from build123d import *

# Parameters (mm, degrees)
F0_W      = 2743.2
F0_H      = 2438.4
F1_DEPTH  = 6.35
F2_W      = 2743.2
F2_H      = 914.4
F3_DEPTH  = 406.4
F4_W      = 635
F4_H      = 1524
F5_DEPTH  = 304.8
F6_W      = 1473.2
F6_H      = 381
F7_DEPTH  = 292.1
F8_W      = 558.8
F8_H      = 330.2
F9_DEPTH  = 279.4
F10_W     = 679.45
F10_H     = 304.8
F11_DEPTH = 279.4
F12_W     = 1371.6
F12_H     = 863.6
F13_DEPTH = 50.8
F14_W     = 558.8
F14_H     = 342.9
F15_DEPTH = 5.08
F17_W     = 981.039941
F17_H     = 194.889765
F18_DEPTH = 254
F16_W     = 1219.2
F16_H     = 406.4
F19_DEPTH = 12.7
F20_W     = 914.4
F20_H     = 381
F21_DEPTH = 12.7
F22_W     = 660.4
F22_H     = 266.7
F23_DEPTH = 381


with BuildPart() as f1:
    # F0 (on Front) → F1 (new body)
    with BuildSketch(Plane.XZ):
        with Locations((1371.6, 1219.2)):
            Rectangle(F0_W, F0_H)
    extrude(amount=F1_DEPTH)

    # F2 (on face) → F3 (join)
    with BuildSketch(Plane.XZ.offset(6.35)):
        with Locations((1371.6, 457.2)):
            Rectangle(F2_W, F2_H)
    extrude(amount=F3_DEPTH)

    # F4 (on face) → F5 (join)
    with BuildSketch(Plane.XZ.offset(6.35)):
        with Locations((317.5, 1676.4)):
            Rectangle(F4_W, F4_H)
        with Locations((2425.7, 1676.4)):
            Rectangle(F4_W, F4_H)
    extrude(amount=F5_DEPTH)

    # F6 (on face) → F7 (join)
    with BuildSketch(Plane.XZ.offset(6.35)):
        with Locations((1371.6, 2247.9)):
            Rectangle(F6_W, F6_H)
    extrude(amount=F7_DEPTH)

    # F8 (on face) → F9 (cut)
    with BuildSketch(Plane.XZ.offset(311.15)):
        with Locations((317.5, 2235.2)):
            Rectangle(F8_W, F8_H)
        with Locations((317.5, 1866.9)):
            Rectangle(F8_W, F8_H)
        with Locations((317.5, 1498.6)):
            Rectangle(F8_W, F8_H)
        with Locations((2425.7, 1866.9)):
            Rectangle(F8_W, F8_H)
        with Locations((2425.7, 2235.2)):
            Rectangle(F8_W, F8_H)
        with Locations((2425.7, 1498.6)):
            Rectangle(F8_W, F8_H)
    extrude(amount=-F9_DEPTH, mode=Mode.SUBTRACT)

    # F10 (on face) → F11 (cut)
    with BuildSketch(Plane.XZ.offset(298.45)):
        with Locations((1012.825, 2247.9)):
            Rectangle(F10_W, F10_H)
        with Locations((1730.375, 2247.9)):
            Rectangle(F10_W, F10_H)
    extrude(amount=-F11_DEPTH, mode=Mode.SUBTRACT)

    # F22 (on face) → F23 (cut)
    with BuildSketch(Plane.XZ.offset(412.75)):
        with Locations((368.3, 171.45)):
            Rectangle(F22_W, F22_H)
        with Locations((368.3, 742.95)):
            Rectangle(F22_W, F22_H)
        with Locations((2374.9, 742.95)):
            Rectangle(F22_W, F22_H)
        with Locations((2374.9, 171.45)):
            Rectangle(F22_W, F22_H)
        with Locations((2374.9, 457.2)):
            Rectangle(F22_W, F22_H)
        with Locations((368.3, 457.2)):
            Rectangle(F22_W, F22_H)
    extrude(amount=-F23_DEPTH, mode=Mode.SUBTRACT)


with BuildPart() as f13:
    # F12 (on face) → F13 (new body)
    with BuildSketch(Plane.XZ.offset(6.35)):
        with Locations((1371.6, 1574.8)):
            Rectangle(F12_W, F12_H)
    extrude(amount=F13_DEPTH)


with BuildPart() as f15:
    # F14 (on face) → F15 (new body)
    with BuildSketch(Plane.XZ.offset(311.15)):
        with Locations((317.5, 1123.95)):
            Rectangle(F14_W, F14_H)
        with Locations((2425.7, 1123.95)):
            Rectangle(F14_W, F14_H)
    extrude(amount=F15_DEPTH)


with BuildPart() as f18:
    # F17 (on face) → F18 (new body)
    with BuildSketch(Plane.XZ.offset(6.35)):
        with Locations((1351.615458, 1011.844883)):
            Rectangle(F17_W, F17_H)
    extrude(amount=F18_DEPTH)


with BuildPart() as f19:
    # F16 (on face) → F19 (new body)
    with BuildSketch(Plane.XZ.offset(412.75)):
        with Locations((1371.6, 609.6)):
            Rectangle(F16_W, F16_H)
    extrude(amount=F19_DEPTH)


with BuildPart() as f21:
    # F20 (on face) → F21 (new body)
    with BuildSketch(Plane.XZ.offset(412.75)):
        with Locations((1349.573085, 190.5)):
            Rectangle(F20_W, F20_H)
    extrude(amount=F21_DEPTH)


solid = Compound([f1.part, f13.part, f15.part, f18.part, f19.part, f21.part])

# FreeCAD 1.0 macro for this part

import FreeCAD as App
import Part
import Sketcher
from FreeCAD import Vector
Q = App.Units.Quantity

doc = App.newDocument("Part")
body = doc.addObject("PartDesign::Body", "Body")

# Sketch on XZ plane
sketch1 = doc.addObject("Sketcher::SketchObject", "Sketch")
body.addObject(sketch1)
sketch1.AttachmentSupport = (doc.XZ_Plane, [""])
sketch1.MapMode = "FlatFace"
sketch1.addGeometry(Part.LineSegment(Vector(0, 2438, 0), Vector(0, 0, 0)), False)
sketch1.addGeometry(Part.LineSegment(Vector(0, 0, 0), Vector(2743, 0, 0)), False)
sketch1.addGeometry(Part.LineSegment(Vector(2743, 0, 0), Vector(2743, 2438, 0)), False)
sketch1.addGeometry(Part.LineSegment(Vector(2743, 2438, 0), Vector(0, 2438, 0)), False)
sketch1.addConstraint(Sketcher.Constraint("Coincident", 0, 2, 1, 1))
sketch1.addConstraint(Sketcher.Constraint("Coincident", 1, 2, 2, 1))
sketch1.addConstraint(Sketcher.Constraint("Coincident", 2, 2, 3, 1))
sketch1.addConstraint(Sketcher.Constraint("Coincident", 3, 2, 0, 1))
sketch1.addConstraint(Sketcher.Constraint("Vertical", 0))
sketch1.addConstraint(Sketcher.Constraint("Horizontal", 1))
sketch1.addConstraint(Sketcher.Constraint("Vertical", 2))
sketch1.addConstraint(Sketcher.Constraint("Horizontal", 3))
sketch1.addConstraint(Sketcher.Constraint("Coincident", 0, 2, -1, 1))
sketch1.addConstraint(Sketcher.Constraint("DistanceX", 1, 1, 1, 2, Q("108 in")))
sketch1.addConstraint(Sketcher.Constraint("DistanceY", 0, 2, 0, 1, Q("96 in")))
pad1 = doc.addObject("PartDesign::Pad", "Pad")
body.addObject(pad1)
pad1.Profile = sketch1
pad1.Length = Q("0.25 in")

# Sketch on XZ plane
sketch2 = doc.addObject("Sketcher::SketchObject", "Sketch001")
body.addObject(sketch2)
sketch2.AttachmentSupport = (doc.XZ_Plane, [""])
sketch2.MapMode = "FlatFace"
sketch2.AttachmentOffset = App.Placement(Vector(0, 0, 0.25 * 25.4), App.Rotation())
sketch2.addGeometry(Part.LineSegment(Vector(0, 914, 0), Vector(0, 0, 0)), False)
sketch2.addGeometry(Part.LineSegment(Vector(0, 0, 0), Vector(2743, 0, 0)), False)
sketch2.addGeometry(Part.LineSegment(Vector(2743, 0, 0), Vector(2743, 914, 0)), False)
sketch2.addGeometry(Part.LineSegment(Vector(2743, 914, 0), Vector(0, 914, 0)), False)
sketch2.addConstraint(Sketcher.Constraint("Coincident", 0, 2, 1, 1))
sketch2.addConstraint(Sketcher.Constraint("Coincident", 1, 2, 2, 1))
sketch2.addConstraint(Sketcher.Constraint("Coincident", 2, 2, 3, 1))
sketch2.addConstraint(Sketcher.Constraint("Coincident", 3, 2, 0, 1))
sketch2.addConstraint(Sketcher.Constraint("Vertical", 0))
sketch2.addConstraint(Sketcher.Constraint("Horizontal", 1))
sketch2.addConstraint(Sketcher.Constraint("Vertical", 2))
sketch2.addConstraint(Sketcher.Constraint("Horizontal", 3))
sketch2.addConstraint(Sketcher.Constraint("Coincident", 0, 2, -1, 1))
sketch2.addConstraint(Sketcher.Constraint("DistanceX", 1, 1, 1, 2, Q("108 in")))
sketch2.addConstraint(Sketcher.Constraint("DistanceY", 0, 2, 0, 1, Q("36 in")))
pad2 = doc.addObject("PartDesign::Pad", "Pad001")
body.addObject(pad2)
pad2.Profile = sketch2
pad2.Length = Q("16 in")

# Sketch on XZ plane
sketch3 = doc.addObject("Sketcher::SketchObject", "Sketch002")
body.addObject(sketch3)
sketch3.AttachmentSupport = (doc.XZ_Plane, [""])
sketch3.MapMode = "FlatFace"
sketch3.AttachmentOffset = App.Placement(Vector(0, 0, 0.25 * 25.4), App.Rotation())
sketch3.addGeometry(Part.LineSegment(Vector(0, 2438, 0), Vector(0, 914, 0)), False)
sketch3.addGeometry(Part.LineSegment(Vector(0, 914, 0), Vector(635, 914, 0)), False)
sketch3.addGeometry(Part.LineSegment(Vector(635, 914, 0), Vector(635, 2438, 0)), False)
sketch3.addGeometry(Part.LineSegment(Vector(635, 2438, 0), Vector(0, 2438, 0)), False)
sketch3.addGeometry(Part.LineSegment(Vector(2108, 2438, 0), Vector(2108, 914, 0)), False)
sketch3.addGeometry(Part.LineSegment(Vector(2108, 914, 0), Vector(2743, 914, 0)), False)
sketch3.addGeometry(Part.LineSegment(Vector(2743, 914, 0), Vector(2743, 2438, 0)), False)
sketch3.addGeometry(Part.LineSegment(Vector(2743, 2438, 0), Vector(2108, 2438, 0)), False)
sketch3.addConstraint(Sketcher.Constraint("Coincident", 0, 2, 1, 1))
sketch3.addConstraint(Sketcher.Constraint("Coincident", 1, 2, 2, 1))
sketch3.addConstraint(Sketcher.Constraint("Coincident", 2, 2, 3, 1))
sketch3.addConstraint(Sketcher.Constraint("Coincident", 3, 2, 0, 1))
sketch3.addConstraint(Sketcher.Constraint("Coincident", 4, 2, 5, 1))
sketch3.addConstraint(Sketcher.Constraint("Coincident", 5, 2, 6, 1))
sketch3.addConstraint(Sketcher.Constraint("Coincident", 6, 2, 7, 1))
sketch3.addConstraint(Sketcher.Constraint("Coincident", 7, 2, 4, 1))
sketch3.addConstraint(Sketcher.Constraint("Vertical", 0))
sketch3.addConstraint(Sketcher.Constraint("Horizontal", 1))
sketch3.addConstraint(Sketcher.Constraint("Vertical", 2))
sketch3.addConstraint(Sketcher.Constraint("Horizontal", 3))
sketch3.addConstraint(Sketcher.Constraint("Vertical", 4))
sketch3.addConstraint(Sketcher.Constraint("Horizontal", 5))
sketch3.addConstraint(Sketcher.Constraint("Vertical", 6))
sketch3.addConstraint(Sketcher.Constraint("Horizontal", 7))
sketch3.addConstraint(Sketcher.Constraint("PointOnObject", 0, 2, -2))
sketch3.addConstraint(Sketcher.Constraint("Horizontal", 1, 2, 4, 2))
sketch3.addConstraint(Sketcher.Constraint("Horizontal", 3, 2, 6, 2))
sketch3.addConstraint(Sketcher.Constraint("Equal", 3, 5))
sketch3.addConstraint(Sketcher.Constraint("DistanceX", 1, 1, 1, 2, Q("25 in")))
sketch3.addConstraint(Sketcher.Constraint("DistanceY", 0, 2, 0, 1, Q("60 in")))
sketch3.addConstraint(Sketcher.Constraint("DistanceY", -1, 1, 0, 2, Q("36 in")))
sketch3.addConstraint(Sketcher.Constraint("DistanceX", -1, 1, 4, 2, Q("83 in")))
pad3 = doc.addObject("PartDesign::Pad", "Pad002")
body.addObject(pad3)
pad3.Profile = sketch3
pad3.Length = Q("12 in")

# Sketch on XZ plane
sketch4 = doc.addObject("Sketcher::SketchObject", "Sketch003")
body.addObject(sketch4)
sketch4.AttachmentSupport = (doc.XZ_Plane, [""])
sketch4.MapMode = "FlatFace"
sketch4.AttachmentOffset = App.Placement(Vector(0, 0, 0.25 * 25.4), App.Rotation())
sketch4.addGeometry(Part.LineSegment(Vector(635, 2438, 0), Vector(635, 2057, 0)), False)
sketch4.addGeometry(Part.LineSegment(Vector(635, 2057, 0), Vector(2108, 2057, 0)), False)
sketch4.addGeometry(Part.LineSegment(Vector(2108, 2057, 0), Vector(2108, 2438, 0)), False)
sketch4.addGeometry(Part.LineSegment(Vector(2108, 2438, 0), Vector(635, 2438, 0)), False)
sketch4.addConstraint(Sketcher.Constraint("Coincident", 0, 2, 1, 1))
sketch4.addConstraint(Sketcher.Constraint("Coincident", 1, 2, 2, 1))
sketch4.addConstraint(Sketcher.Constraint("Coincident", 2, 2, 3, 1))
sketch4.addConstraint(Sketcher.Constraint("Coincident", 3, 2, 0, 1))
sketch4.addConstraint(Sketcher.Constraint("Vertical", 0))
sketch4.addConstraint(Sketcher.Constraint("Horizontal", 1))
sketch4.addConstraint(Sketcher.Constraint("Vertical", 2))
sketch4.addConstraint(Sketcher.Constraint("Horizontal", 3))
sketch4.addConstraint(Sketcher.Constraint("DistanceX", 1, 1, 1, 2, Q("58 in")))
sketch4.addConstraint(Sketcher.Constraint("DistanceY", 0, 2, 0, 1, Q("15 in")))
sketch4.addConstraint(Sketcher.Constraint("DistanceX", -1, 1, 0, 2, Q("25 in")))
sketch4.addConstraint(Sketcher.Constraint("DistanceY", -1, 1, 0, 2, Q("81 in")))
pad4 = doc.addObject("PartDesign::Pad", "Pad003")
body.addObject(pad4)
pad4.Profile = sketch4
pad4.Length = Q("11.5 in")

# Sketch on XZ plane
sketch5 = doc.addObject("Sketcher::SketchObject", "Sketch004")
body.addObject(sketch5)
sketch5.AttachmentSupport = (doc.XZ_Plane, [""])
sketch5.MapMode = "FlatFace"
sketch5.AttachmentOffset = App.Placement(Vector(0, 0, 12.25 * 25.4), App.Rotation())
sketch5.addGeometry(Part.LineSegment(Vector(38, 2400, 0), Vector(38, 2070, 0)), False)
sketch5.addGeometry(Part.LineSegment(Vector(38, 2070, 0), Vector(597, 2070, 0)), False)
sketch5.addGeometry(Part.LineSegment(Vector(597, 2070, 0), Vector(597, 2400, 0)), False)
sketch5.addGeometry(Part.LineSegment(Vector(597, 2400, 0), Vector(38, 2400, 0)), False)
sketch5.addGeometry(Part.LineSegment(Vector(38, 2032, 0), Vector(38, 1702, 0)), False)
sketch5.addGeometry(Part.LineSegment(Vector(38, 1702, 0), Vector(597, 1702, 0)), False)
sketch5.addGeometry(Part.LineSegment(Vector(597, 1702, 0), Vector(597, 2032, 0)), False)
sketch5.addGeometry(Part.LineSegment(Vector(597, 2032, 0), Vector(38, 2032, 0)), False)
sketch5.addGeometry(Part.LineSegment(Vector(38, 1664, 0), Vector(38, 1334, 0)), False)
sketch5.addGeometry(Part.LineSegment(Vector(38, 1334, 0), Vector(597, 1334, 0)), False)
sketch5.addGeometry(Part.LineSegment(Vector(597, 1334, 0), Vector(597, 1664, 0)), False)
sketch5.addGeometry(Part.LineSegment(Vector(597, 1664, 0), Vector(38, 1664, 0)), False)
sketch5.addGeometry(Part.LineSegment(Vector(2146, 2032, 0), Vector(2146, 1702, 0)), False)
sketch5.addGeometry(Part.LineSegment(Vector(2146, 1702, 0), Vector(2705, 1702, 0)), False)
sketch5.addGeometry(Part.LineSegment(Vector(2705, 1702, 0), Vector(2705, 2032, 0)), False)
sketch5.addGeometry(Part.LineSegment(Vector(2705, 2032, 0), Vector(2146, 2032, 0)), False)
sketch5.addGeometry(Part.LineSegment(Vector(2146, 2400, 0), Vector(2146, 2070, 0)), False)
sketch5.addGeometry(Part.LineSegment(Vector(2146, 2070, 0), Vector(2705, 2070, 0)), False)
sketch5.addGeometry(Part.LineSegment(Vector(2705, 2070, 0), Vector(2705, 2400, 0)), False)
sketch5.addGeometry(Part.LineSegment(Vector(2705, 2400, 0), Vector(2146, 2400, 0)), False)
sketch5.addGeometry(Part.LineSegment(Vector(2146, 1664, 0), Vector(2146, 1334, 0)), False)
sketch5.addGeometry(Part.LineSegment(Vector(2146, 1334, 0), Vector(2705, 1334, 0)), False)
sketch5.addGeometry(Part.LineSegment(Vector(2705, 1334, 0), Vector(2705, 1664, 0)), False)
sketch5.addGeometry(Part.LineSegment(Vector(2705, 1664, 0), Vector(2146, 1664, 0)), False)
sketch5.addConstraint(Sketcher.Constraint("Coincident", 0, 2, 1, 1))
sketch5.addConstraint(Sketcher.Constraint("Coincident", 1, 2, 2, 1))
sketch5.addConstraint(Sketcher.Constraint("Coincident", 2, 2, 3, 1))
sketch5.addConstraint(Sketcher.Constraint("Coincident", 3, 2, 0, 1))
sketch5.addConstraint(Sketcher.Constraint("Coincident", 4, 2, 5, 1))
sketch5.addConstraint(Sketcher.Constraint("Coincident", 5, 2, 6, 1))
sketch5.addConstraint(Sketcher.Constraint("Coincident", 6, 2, 7, 1))
sketch5.addConstraint(Sketcher.Constraint("Coincident", 7, 2, 4, 1))
sketch5.addConstraint(Sketcher.Constraint("Coincident", 8, 2, 9, 1))
sketch5.addConstraint(Sketcher.Constraint("Coincident", 9, 2, 10, 1))
sketch5.addConstraint(Sketcher.Constraint("Coincident", 10, 2, 11, 1))
sketch5.addConstraint(Sketcher.Constraint("Coincident", 11, 2, 8, 1))
sketch5.addConstraint(Sketcher.Constraint("Coincident", 12, 2, 13, 1))
sketch5.addConstraint(Sketcher.Constraint("Coincident", 13, 2, 14, 1))
sketch5.addConstraint(Sketcher.Constraint("Coincident", 14, 2, 15, 1))
sketch5.addConstraint(Sketcher.Constraint("Coincident", 15, 2, 12, 1))
sketch5.addConstraint(Sketcher.Constraint("Coincident", 16, 2, 17, 1))
sketch5.addConstraint(Sketcher.Constraint("Coincident", 17, 2, 18, 1))
sketch5.addConstraint(Sketcher.Constraint("Coincident", 18, 2, 19, 1))
sketch5.addConstraint(Sketcher.Constraint("Coincident", 19, 2, 16, 1))
sketch5.addConstraint(Sketcher.Constraint("Coincident", 20, 2, 21, 1))
sketch5.addConstraint(Sketcher.Constraint("Coincident", 21, 2, 22, 1))
sketch5.addConstraint(Sketcher.Constraint("Coincident", 22, 2, 23, 1))
sketch5.addConstraint(Sketcher.Constraint("Coincident", 23, 2, 20, 1))
sketch5.addConstraint(Sketcher.Constraint("Vertical", 0))
sketch5.addConstraint(Sketcher.Constraint("Horizontal", 1))
sketch5.addConstraint(Sketcher.Constraint("Vertical", 2))
sketch5.addConstraint(Sketcher.Constraint("Horizontal", 3))
sketch5.addConstraint(Sketcher.Constraint("Vertical", 4))
sketch5.addConstraint(Sketcher.Constraint("Horizontal", 5))
sketch5.addConstraint(Sketcher.Constraint("Vertical", 6))
sketch5.addConstraint(Sketcher.Constraint("Horizontal", 7))
sketch5.addConstraint(Sketcher.Constraint("Vertical", 8))
sketch5.addConstraint(Sketcher.Constraint("Horizontal", 9))
sketch5.addConstraint(Sketcher.Constraint("Vertical", 10))
sketch5.addConstraint(Sketcher.Constraint("Horizontal", 11))
sketch5.addConstraint(Sketcher.Constraint("Vertical", 12))
sketch5.addConstraint(Sketcher.Constraint("Horizontal", 13))
sketch5.addConstraint(Sketcher.Constraint("Vertical", 14))
sketch5.addConstraint(Sketcher.Constraint("Horizontal", 15))
sketch5.addConstraint(Sketcher.Constraint("Vertical", 16))
sketch5.addConstraint(Sketcher.Constraint("Horizontal", 17))
sketch5.addConstraint(Sketcher.Constraint("Vertical", 18))
sketch5.addConstraint(Sketcher.Constraint("Horizontal", 19))
sketch5.addConstraint(Sketcher.Constraint("Vertical", 20))
sketch5.addConstraint(Sketcher.Constraint("Horizontal", 21))
sketch5.addConstraint(Sketcher.Constraint("Vertical", 22))
sketch5.addConstraint(Sketcher.Constraint("Horizontal", 23))
sketch5.addConstraint(Sketcher.Constraint("Horizontal", 5, 2, 12, 2))
sketch5.addConstraint(Sketcher.Constraint("Horizontal", 7, 2, 14, 2))
sketch5.addConstraint(Sketcher.Constraint("Horizontal", 1, 2, 16, 2))
sketch5.addConstraint(Sketcher.Constraint("Horizontal", 3, 2, 18, 2))
sketch5.addConstraint(Sketcher.Constraint("Horizontal", 9, 2, 20, 2))
sketch5.addConstraint(Sketcher.Constraint("Horizontal", 11, 2, 22, 2))
sketch5.addConstraint(Sketcher.Constraint("Vertical", 3, 2, 4, 2))
sketch5.addConstraint(Sketcher.Constraint("Vertical", 2, 2, 5, 2))
sketch5.addConstraint(Sketcher.Constraint("Vertical", 7, 2, 8, 2))
sketch5.addConstraint(Sketcher.Constraint("Vertical", 6, 2, 9, 2))
sketch5.addConstraint(Sketcher.Constraint("Vertical", 15, 2, 16, 2))
sketch5.addConstraint(Sketcher.Constraint("Vertical", 14, 2, 17, 2))
sketch5.addConstraint(Sketcher.Constraint("Vertical", 19, 2, 20, 2))
sketch5.addConstraint(Sketcher.Constraint("Vertical", 18, 2, 21, 2))
sketch5.addConstraint(Sketcher.Constraint("Equal", 11, 13))
sketch5.addConstraint(Sketcher.Constraint("Equal", 2, 4))
sketch5.addConstraint(Sketcher.Constraint("Equal", 6, 8))
sketch5.addConstraint(Sketcher.Constraint("DistanceX", 1, 1, 1, 2, Q("22 in")))
sketch5.addConstraint(Sketcher.Constraint("DistanceY", 0, 2, 0, 1, Q("13 in")))
sketch5.addConstraint(Sketcher.Constraint("DistanceY", -1, 1, 4, 2, Q("67 in")))
sketch5.addConstraint(Sketcher.Constraint("DistanceY", 8, 2, 0, 2, Q("29 in")))
sketch5.addConstraint(Sketcher.Constraint("DistanceX", 5, 2, 12, 2, Q("61 in")))
sketch5.addConstraint(Sketcher.Constraint("DistanceX", -1, 1, 0, 2, Q("1.5 in")))
sketch5.addConstraint(Sketcher.Constraint("DistanceY", -1, 1, 0, 2, Q("81.5 in")))
pocket1 = doc.addObject("PartDesign::Pocket", "Pocket")
body.addObject(pocket1)
pocket1.Profile = sketch5
pocket1.Length = Q("11 in")

# Sketch on XZ plane
sketch6 = doc.addObject("Sketcher::SketchObject", "Sketch005")
body.addObject(sketch6)
sketch6.AttachmentSupport = (doc.XZ_Plane, [""])
sketch6.MapMode = "FlatFace"
sketch6.AttachmentOffset = App.Placement(Vector(0, 0, 11.75 * 25.4), App.Rotation())
sketch6.addGeometry(Part.LineSegment(Vector(673, 2400, 0), Vector(673, 2096, 0)), False)
sketch6.addGeometry(Part.LineSegment(Vector(673, 2096, 0), Vector(1353, 2096, 0)), False)
sketch6.addGeometry(Part.LineSegment(Vector(1353, 2096, 0), Vector(1353, 2400, 0)), False)
sketch6.addGeometry(Part.LineSegment(Vector(1353, 2400, 0), Vector(673, 2400, 0)), False)
sketch6.addGeometry(Part.LineSegment(Vector(1391, 2400, 0), Vector(1391, 2096, 0)), False)
sketch6.addGeometry(Part.LineSegment(Vector(1391, 2096, 0), Vector(2070, 2096, 0)), False)
sketch6.addGeometry(Part.LineSegment(Vector(2070, 2096, 0), Vector(2070, 2400, 0)), False)
sketch6.addGeometry(Part.LineSegment(Vector(2070, 2400, 0), Vector(1391, 2400, 0)), False)
sketch6.addConstraint(Sketcher.Constraint("Coincident", 0, 2, 1, 1))
sketch6.addConstraint(Sketcher.Constraint("Coincident", 1, 2, 2, 1))
sketch6.addConstraint(Sketcher.Constraint("Coincident", 2, 2, 3, 1))
sketch6.addConstraint(Sketcher.Constraint("Coincident", 3, 2, 0, 1))
sketch6.addConstraint(Sketcher.Constraint("Coincident", 4, 2, 5, 1))
sketch6.addConstraint(Sketcher.Constraint("Coincident", 5, 2, 6, 1))
sketch6.addConstraint(Sketcher.Constraint("Coincident", 6, 2, 7, 1))
sketch6.addConstraint(Sketcher.Constraint("Coincident", 7, 2, 4, 1))
sketch6.addConstraint(Sketcher.Constraint("Vertical", 0))
sketch6.addConstraint(Sketcher.Constraint("Horizontal", 1))
sketch6.addConstraint(Sketcher.Constraint("Vertical", 2))
sketch6.addConstraint(Sketcher.Constraint("Horizontal", 3))
sketch6.addConstraint(Sketcher.Constraint("Vertical", 4))
sketch6.addConstraint(Sketcher.Constraint("Horizontal", 5))
sketch6.addConstraint(Sketcher.Constraint("Vertical", 6))
sketch6.addConstraint(Sketcher.Constraint("Horizontal", 7))
sketch6.addConstraint(Sketcher.Constraint("Horizontal", 1, 2, 4, 2))
sketch6.addConstraint(Sketcher.Constraint("Horizontal", 3, 2, 6, 2))
sketch6.addConstraint(Sketcher.Constraint("Equal", 3, 5))
sketch6.addConstraint(Sketcher.Constraint("DistanceY", 0, 2, 0, 1, Q("12 in")))
sketch6.addConstraint(Sketcher.Constraint("DistanceX", 0, 2, 5, 2, Q("55 in")))
sketch6.addConstraint(Sketcher.Constraint("DistanceX", 1, 1, 1, 2, Q("26.75 in")))
sketch6.addConstraint(Sketcher.Constraint("DistanceX", -1, 1, 0, 2, Q("26.5 in")))
sketch6.addConstraint(Sketcher.Constraint("DistanceY", -1, 1, 0, 2, Q("82.5 in")))
pocket2 = doc.addObject("PartDesign::Pocket", "Pocket001")
body.addObject(pocket2)
pocket2.Profile = sketch6
pocket2.Length = Q("11 in")

# Sketch on XZ plane
sketch7 = doc.addObject("Sketcher::SketchObject", "Sketch006")
body.addObject(sketch7)
sketch7.AttachmentSupport = (doc.XZ_Plane, [""])
sketch7.MapMode = "FlatFace"
sketch7.AttachmentOffset = App.Placement(Vector(0, 0, 16.25 * 25.4), App.Rotation())
sketch7.addGeometry(Part.LineSegment(Vector(38, 305, 0), Vector(38, 38, 0)), False)
sketch7.addGeometry(Part.LineSegment(Vector(38, 38, 0), Vector(698, 38, 0)), False)
sketch7.addGeometry(Part.LineSegment(Vector(698, 38, 0), Vector(698, 305, 0)), False)
sketch7.addGeometry(Part.LineSegment(Vector(698, 305, 0), Vector(38, 305, 0)), False)
sketch7.addGeometry(Part.LineSegment(Vector(38, 876, 0), Vector(38, 610, 0)), False)
sketch7.addGeometry(Part.LineSegment(Vector(38, 610, 0), Vector(698, 610, 0)), False)
sketch7.addGeometry(Part.LineSegment(Vector(698, 610, 0), Vector(698, 876, 0)), False)
sketch7.addGeometry(Part.LineSegment(Vector(698, 876, 0), Vector(38, 876, 0)), False)
sketch7.addGeometry(Part.LineSegment(Vector(2045, 876, 0), Vector(2045, 610, 0)), False)
sketch7.addGeometry(Part.LineSegment(Vector(2045, 610, 0), Vector(2705, 610, 0)), False)
sketch7.addGeometry(Part.LineSegment(Vector(2705, 610, 0), Vector(2705, 876, 0)), False)
sketch7.addGeometry(Part.LineSegment(Vector(2705, 876, 0), Vector(2045, 876, 0)), False)
sketch7.addGeometry(Part.LineSegment(Vector(2045, 305, 0), Vector(2045, 38, 0)), False)
sketch7.addGeometry(Part.LineSegment(Vector(2045, 38, 0), Vector(2705, 38, 0)), False)
sketch7.addGeometry(Part.LineSegment(Vector(2705, 38, 0), Vector(2705, 305, 0)), False)
sketch7.addGeometry(Part.LineSegment(Vector(2705, 305, 0), Vector(2045, 305, 0)), False)
sketch7.addGeometry(Part.LineSegment(Vector(2045, 591, 0), Vector(2045, 324, 0)), False)
sketch7.addGeometry(Part.LineSegment(Vector(2045, 324, 0), Vector(2705, 324, 0)), False)
sketch7.addGeometry(Part.LineSegment(Vector(2705, 324, 0), Vector(2705, 591, 0)), False)
sketch7.addGeometry(Part.LineSegment(Vector(2705, 591, 0), Vector(2045, 591, 0)), False)
sketch7.addGeometry(Part.LineSegment(Vector(38, 591, 0), Vector(38, 324, 0)), False)
sketch7.addGeometry(Part.LineSegment(Vector(38, 324, 0), Vector(698, 324, 0)), False)
sketch7.addGeometry(Part.LineSegment(Vector(698, 324, 0), Vector(698, 591, 0)), False)
sketch7.addGeometry(Part.LineSegment(Vector(698, 591, 0), Vector(38, 591, 0)), False)
sketch7.addConstraint(Sketcher.Constraint("Coincident", 0, 2, 1, 1))
sketch7.addConstraint(Sketcher.Constraint("Coincident", 1, 2, 2, 1))
sketch7.addConstraint(Sketcher.Constraint("Coincident", 2, 2, 3, 1))
sketch7.addConstraint(Sketcher.Constraint("Coincident", 3, 2, 0, 1))
sketch7.addConstraint(Sketcher.Constraint("Coincident", 4, 2, 5, 1))
sketch7.addConstraint(Sketcher.Constraint("Coincident", 5, 2, 6, 1))
sketch7.addConstraint(Sketcher.Constraint("Coincident", 6, 2, 7, 1))
sketch7.addConstraint(Sketcher.Constraint("Coincident", 7, 2, 4, 1))
sketch7.addConstraint(Sketcher.Constraint("Coincident", 8, 2, 9, 1))
sketch7.addConstraint(Sketcher.Constraint("Coincident", 9, 2, 10, 1))
sketch7.addConstraint(Sketcher.Constraint("Coincident", 10, 2, 11, 1))
sketch7.addConstraint(Sketcher.Constraint("Coincident", 11, 2, 8, 1))
sketch7.addConstraint(Sketcher.Constraint("Coincident", 12, 2, 13, 1))
sketch7.addConstraint(Sketcher.Constraint("Coincident", 13, 2, 14, 1))
sketch7.addConstraint(Sketcher.Constraint("Coincident", 14, 2, 15, 1))
sketch7.addConstraint(Sketcher.Constraint("Coincident", 15, 2, 12, 1))
sketch7.addConstraint(Sketcher.Constraint("Coincident", 16, 2, 17, 1))
sketch7.addConstraint(Sketcher.Constraint("Coincident", 17, 2, 18, 1))
sketch7.addConstraint(Sketcher.Constraint("Coincident", 18, 2, 19, 1))
sketch7.addConstraint(Sketcher.Constraint("Coincident", 19, 2, 16, 1))
sketch7.addConstraint(Sketcher.Constraint("Coincident", 20, 2, 21, 1))
sketch7.addConstraint(Sketcher.Constraint("Coincident", 21, 2, 22, 1))
sketch7.addConstraint(Sketcher.Constraint("Coincident", 22, 2, 23, 1))
sketch7.addConstraint(Sketcher.Constraint("Coincident", 23, 2, 20, 1))
sketch7.addConstraint(Sketcher.Constraint("Vertical", 0))
sketch7.addConstraint(Sketcher.Constraint("Horizontal", 1))
sketch7.addConstraint(Sketcher.Constraint("Vertical", 2))
sketch7.addConstraint(Sketcher.Constraint("Horizontal", 3))
sketch7.addConstraint(Sketcher.Constraint("Vertical", 4))
sketch7.addConstraint(Sketcher.Constraint("Horizontal", 5))
sketch7.addConstraint(Sketcher.Constraint("Vertical", 6))
sketch7.addConstraint(Sketcher.Constraint("Horizontal", 7))
sketch7.addConstraint(Sketcher.Constraint("Vertical", 8))
sketch7.addConstraint(Sketcher.Constraint("Horizontal", 9))
sketch7.addConstraint(Sketcher.Constraint("Vertical", 10))
sketch7.addConstraint(Sketcher.Constraint("Horizontal", 11))
sketch7.addConstraint(Sketcher.Constraint("Vertical", 12))
sketch7.addConstraint(Sketcher.Constraint("Horizontal", 13))
sketch7.addConstraint(Sketcher.Constraint("Vertical", 14))
sketch7.addConstraint(Sketcher.Constraint("Horizontal", 15))
sketch7.addConstraint(Sketcher.Constraint("Vertical", 16))
sketch7.addConstraint(Sketcher.Constraint("Horizontal", 17))
sketch7.addConstraint(Sketcher.Constraint("Vertical", 18))
sketch7.addConstraint(Sketcher.Constraint("Horizontal", 19))
sketch7.addConstraint(Sketcher.Constraint("Vertical", 20))
sketch7.addConstraint(Sketcher.Constraint("Horizontal", 21))
sketch7.addConstraint(Sketcher.Constraint("Vertical", 22))
sketch7.addConstraint(Sketcher.Constraint("Horizontal", 23))
sketch7.addConstraint(Sketcher.Constraint("Horizontal", 5, 2, 8, 2))
sketch7.addConstraint(Sketcher.Constraint("Horizontal", 7, 2, 10, 2))
sketch7.addConstraint(Sketcher.Constraint("Horizontal", 1, 2, 12, 2))
sketch7.addConstraint(Sketcher.Constraint("Horizontal", 3, 2, 14, 2))
sketch7.addConstraint(Sketcher.Constraint("Horizontal", 17, 2, 20, 2))
sketch7.addConstraint(Sketcher.Constraint("Horizontal", 19, 2, 22, 2))
sketch7.addConstraint(Sketcher.Constraint("Vertical", 3, 2, 4, 2))
sketch7.addConstraint(Sketcher.Constraint("Vertical", 2, 2, 5, 2))
sketch7.addConstraint(Sketcher.Constraint("Vertical", 11, 2, 12, 2))
sketch7.addConstraint(Sketcher.Constraint("Vertical", 10, 2, 13, 2))
sketch7.addConstraint(Sketcher.Constraint("Vertical", 15, 2, 16, 2))
sketch7.addConstraint(Sketcher.Constraint("Vertical", 14, 2, 17, 2))
sketch7.addConstraint(Sketcher.Constraint("Vertical", 7, 2, 20, 2))
sketch7.addConstraint(Sketcher.Constraint("Vertical", 6, 2, 21, 2))
sketch7.addConstraint(Sketcher.Constraint("Equal", 7, 9))
sketch7.addConstraint(Sketcher.Constraint("Equal", 2, 4))
sketch7.addConstraint(Sketcher.Constraint("Equal", 14, 16))
sketch7.addConstraint(Sketcher.Constraint("DistanceX", 1, 1, 1, 2, Q("26 in")))
sketch7.addConstraint(Sketcher.Constraint("DistanceY", 0, 2, 0, 1, Q("10.5 in")))
sketch7.addConstraint(Sketcher.Constraint("DistanceY", -1, 1, 2, 2, Q("12 in")))
sketch7.addConstraint(Sketcher.Constraint("DistanceY", -1, 1, 4, 2, Q("24 in")))
sketch7.addConstraint(Sketcher.Constraint("DistanceX", 5, 2, 8, 2, Q("53 in")))
sketch7.addConstraint(Sketcher.Constraint("DistanceX", -1, 1, 0, 2, Q("1.5 in")))
sketch7.addConstraint(Sketcher.Constraint("DistanceY", -1, 1, 16, 2, Q("12.75 in")))
pocket3 = doc.addObject("PartDesign::Pocket", "Pocket002")
body.addObject(pocket3)
pocket3.Profile = sketch7
pocket3.Length = Q("15 in")
body2 = doc.addObject("PartDesign::Body", "Body001")

# Sketch on XZ plane
sketch8 = doc.addObject("Sketcher::SketchObject", "Sketch007")
body2.addObject(sketch8)
sketch8.AttachmentSupport = (doc.getObject("XZ_Plane001"), [""])
sketch8.MapMode = "FlatFace"
sketch8.AttachmentOffset = App.Placement(Vector(0, 0, 0.25 * 25.4), App.Rotation())
sketch8.addGeometry(Part.LineSegment(Vector(686, 2007, 0), Vector(686, 1143, 0)), False)
sketch8.addGeometry(Part.LineSegment(Vector(686, 1143, 0), Vector(2057, 1143, 0)), False)
sketch8.addGeometry(Part.LineSegment(Vector(2057, 1143, 0), Vector(2057, 2007, 0)), False)
sketch8.addGeometry(Part.LineSegment(Vector(2057, 2007, 0), Vector(686, 2007, 0)), False)
sketch8.addConstraint(Sketcher.Constraint("Coincident", 0, 2, 1, 1))
sketch8.addConstraint(Sketcher.Constraint("Coincident", 1, 2, 2, 1))
sketch8.addConstraint(Sketcher.Constraint("Coincident", 2, 2, 3, 1))
sketch8.addConstraint(Sketcher.Constraint("Coincident", 3, 2, 0, 1))
sketch8.addConstraint(Sketcher.Constraint("Vertical", 0))
sketch8.addConstraint(Sketcher.Constraint("Horizontal", 1))
sketch8.addConstraint(Sketcher.Constraint("Vertical", 2))
sketch8.addConstraint(Sketcher.Constraint("Horizontal", 3))
sketch8.addConstraint(Sketcher.Constraint("DistanceX", 1, 1, 1, 2, Q("54 in")))
sketch8.addConstraint(Sketcher.Constraint("DistanceY", 0, 2, 0, 1, Q("34 in")))
sketch8.addConstraint(Sketcher.Constraint("DistanceX", -1, 1, 0, 2, Q("27 in")))
sketch8.addConstraint(Sketcher.Constraint("DistanceY", -1, 1, 0, 2, Q("45 in")))
pad5 = doc.addObject("PartDesign::Pad", "Pad004")
body2.addObject(pad5)
pad5.Profile = sketch8
pad5.Length = Q("2 in")
body3 = doc.addObject("PartDesign::Body", "Body002")
body3.AllowCompound = True

# Sketch on XZ plane
sketch9 = doc.addObject("Sketcher::SketchObject", "Sketch008")
body3.addObject(sketch9)
sketch9.AttachmentSupport = (doc.getObject("XZ_Plane002"), [""])
sketch9.MapMode = "FlatFace"
sketch9.AttachmentOffset = App.Placement(Vector(0, 0, 12.25 * 25.4), App.Rotation())
sketch9.addGeometry(Part.LineSegment(Vector(38, 1295, 0), Vector(38, 952, 0)), False)
sketch9.addGeometry(Part.LineSegment(Vector(38, 952, 0), Vector(597, 952, 0)), False)
sketch9.addGeometry(Part.LineSegment(Vector(597, 952, 0), Vector(597, 1295, 0)), False)
sketch9.addGeometry(Part.LineSegment(Vector(597, 1295, 0), Vector(38, 1295, 0)), False)
sketch9.addGeometry(Part.LineSegment(Vector(2146, 1295, 0), Vector(2146, 952, 0)), False)
sketch9.addGeometry(Part.LineSegment(Vector(2146, 952, 0), Vector(2705, 952, 0)), False)
sketch9.addGeometry(Part.LineSegment(Vector(2705, 952, 0), Vector(2705, 1295, 0)), False)
sketch9.addGeometry(Part.LineSegment(Vector(2705, 1295, 0), Vector(2146, 1295, 0)), False)
sketch9.addConstraint(Sketcher.Constraint("Coincident", 0, 2, 1, 1))
sketch9.addConstraint(Sketcher.Constraint("Coincident", 1, 2, 2, 1))
sketch9.addConstraint(Sketcher.Constraint("Coincident", 2, 2, 3, 1))
sketch9.addConstraint(Sketcher.Constraint("Coincident", 3, 2, 0, 1))
sketch9.addConstraint(Sketcher.Constraint("Coincident", 4, 2, 5, 1))
sketch9.addConstraint(Sketcher.Constraint("Coincident", 5, 2, 6, 1))
sketch9.addConstraint(Sketcher.Constraint("Coincident", 6, 2, 7, 1))
sketch9.addConstraint(Sketcher.Constraint("Coincident", 7, 2, 4, 1))
sketch9.addConstraint(Sketcher.Constraint("Vertical", 0))
sketch9.addConstraint(Sketcher.Constraint("Horizontal", 1))
sketch9.addConstraint(Sketcher.Constraint("Vertical", 2))
sketch9.addConstraint(Sketcher.Constraint("Horizontal", 3))
sketch9.addConstraint(Sketcher.Constraint("Vertical", 4))
sketch9.addConstraint(Sketcher.Constraint("Horizontal", 5))
sketch9.addConstraint(Sketcher.Constraint("Vertical", 6))
sketch9.addConstraint(Sketcher.Constraint("Horizontal", 7))
sketch9.addConstraint(Sketcher.Constraint("Horizontal", 1, 2, 4, 2))
sketch9.addConstraint(Sketcher.Constraint("Horizontal", 3, 2, 6, 2))
sketch9.addConstraint(Sketcher.Constraint("Equal", 3, 5))
sketch9.addConstraint(Sketcher.Constraint("DistanceX", 1, 1, 1, 2, Q("22 in")))
sketch9.addConstraint(Sketcher.Constraint("DistanceY", 0, 2, 0, 1, Q("13.5 in")))
sketch9.addConstraint(Sketcher.Constraint("DistanceY", -1, 1, 2, 2, Q("51 in")))
sketch9.addConstraint(Sketcher.Constraint("DistanceX", 1, 2, 4, 2, Q("61 in")))
sketch9.addConstraint(Sketcher.Constraint("DistanceX", -1, 1, 0, 2, Q("1.5 in")))
pad6 = doc.addObject("PartDesign::Pad", "Pad005")
body3.addObject(pad6)
pad6.Profile = sketch9
pad6.Length = Q("0.2 in")
body4 = doc.addObject("PartDesign::Body", "Body003")

# Sketch on XZ plane
sketch10 = doc.addObject("Sketcher::SketchObject", "Sketch009")
body4.addObject(sketch10)
sketch10.AttachmentSupport = (doc.getObject("XZ_Plane003"), [""])
sketch10.MapMode = "FlatFace"
sketch10.AttachmentOffset = App.Placement(Vector(0, 0, 0.25 * 25.4), App.Rotation())
sketch10.addGeometry(Part.LineSegment(Vector(861, 1109, 0), Vector(861, 914, 0)), False)
sketch10.addGeometry(Part.LineSegment(Vector(861, 914, 0), Vector(1842, 914, 0)), False)
sketch10.addGeometry(Part.LineSegment(Vector(1842, 914, 0), Vector(1842, 1109, 0)), False)
sketch10.addGeometry(Part.LineSegment(Vector(1842, 1109, 0), Vector(861, 1109, 0)), False)
sketch10.addConstraint(Sketcher.Constraint("Coincident", 0, 2, 1, 1))
sketch10.addConstraint(Sketcher.Constraint("Coincident", 1, 2, 2, 1))
sketch10.addConstraint(Sketcher.Constraint("Coincident", 2, 2, 3, 1))
sketch10.addConstraint(Sketcher.Constraint("Coincident", 3, 2, 0, 1))
sketch10.addConstraint(Sketcher.Constraint("Vertical", 0))
sketch10.addConstraint(Sketcher.Constraint("Horizontal", 1))
sketch10.addConstraint(Sketcher.Constraint("Vertical", 2))
sketch10.addConstraint(Sketcher.Constraint("Horizontal", 3))
sketch10.addConstraint(Sketcher.Constraint("DistanceY", -1, 1, 0, 2, Q("36 in")))
sketch10.addConstraint(Sketcher.Constraint("DistanceX", 1, 1, 1, 2, 981.039941))
sketch10.addConstraint(Sketcher.Constraint("DistanceY", 0, 2, 0, 1, 194.889765))
sketch10.addConstraint(Sketcher.Constraint("DistanceX", -1, 1, 1, 2, 1842.135428))
pad7 = doc.addObject("PartDesign::Pad", "Pad006")
body4.addObject(pad7)
pad7.Profile = sketch10
pad7.Length = Q("10 in")
body5 = doc.addObject("PartDesign::Body", "Body004")

# Sketch on XZ plane
sketch11 = doc.addObject("Sketcher::SketchObject", "Sketch010")
body5.addObject(sketch11)
sketch11.AttachmentSupport = (doc.getObject("XZ_Plane004"), [""])
sketch11.MapMode = "FlatFace"
sketch11.AttachmentOffset = App.Placement(Vector(0, 0, 16.25 * 25.4), App.Rotation())
sketch11.addGeometry(Part.LineSegment(Vector(762, 813, 0), Vector(762, 406, 0)), False)
sketch11.addGeometry(Part.LineSegment(Vector(762, 406, 0), Vector(1981, 406, 0)), False)
sketch11.addGeometry(Part.LineSegment(Vector(1981, 406, 0), Vector(1981, 813, 0)), False)
sketch11.addGeometry(Part.LineSegment(Vector(1981, 813, 0), Vector(762, 813, 0)), False)
sketch11.addConstraint(Sketcher.Constraint("Coincident", 0, 2, 1, 1))
sketch11.addConstraint(Sketcher.Constraint("Coincident", 1, 2, 2, 1))
sketch11.addConstraint(Sketcher.Constraint("Coincident", 2, 2, 3, 1))
sketch11.addConstraint(Sketcher.Constraint("Coincident", 3, 2, 0, 1))
sketch11.addConstraint(Sketcher.Constraint("Vertical", 0))
sketch11.addConstraint(Sketcher.Constraint("Horizontal", 1))
sketch11.addConstraint(Sketcher.Constraint("Vertical", 2))
sketch11.addConstraint(Sketcher.Constraint("Horizontal", 3))
sketch11.addConstraint(Sketcher.Constraint("DistanceX", 1, 1, 1, 2, Q("48 in")))
sketch11.addConstraint(Sketcher.Constraint("DistanceY", 0, 2, 0, 1, Q("16 in")))
sketch11.addConstraint(Sketcher.Constraint("DistanceX", -1, 1, 0, 2, Q("30 in")))
sketch11.addConstraint(Sketcher.Constraint("DistanceY", -1, 1, 0, 2, Q("16 in")))
pad8 = doc.addObject("PartDesign::Pad", "Pad007")
body5.addObject(pad8)
pad8.Profile = sketch11
pad8.Length = Q("0.5 in")
body6 = doc.addObject("PartDesign::Body", "Body005")

# Sketch on XZ plane
sketch12 = doc.addObject("Sketcher::SketchObject", "Sketch011")
body6.addObject(sketch12)
sketch12.AttachmentSupport = (doc.getObject("XZ_Plane005"), [""])
sketch12.MapMode = "FlatFace"
sketch12.AttachmentOffset = App.Placement(Vector(0, 0, 16.25 * 25.4), App.Rotation())
sketch12.addGeometry(Part.LineSegment(Vector(892, 381, 0), Vector(892, 0, 0)), False)
sketch12.addGeometry(Part.LineSegment(Vector(892, 0, 0), Vector(1807, 0, 0)), False)
sketch12.addGeometry(Part.LineSegment(Vector(1807, 0, 0), Vector(1807, 381, 0)), False)
sketch12.addGeometry(Part.LineSegment(Vector(1807, 381, 0), Vector(892, 381, 0)), False)
sketch12.addConstraint(Sketcher.Constraint("Coincident", 0, 2, 1, 1))
sketch12.addConstraint(Sketcher.Constraint("Coincident", 1, 2, 2, 1))
sketch12.addConstraint(Sketcher.Constraint("Coincident", 2, 2, 3, 1))
sketch12.addConstraint(Sketcher.Constraint("Coincident", 3, 2, 0, 1))
sketch12.addConstraint(Sketcher.Constraint("Vertical", 0))
sketch12.addConstraint(Sketcher.Constraint("Horizontal", 1))
sketch12.addConstraint(Sketcher.Constraint("Vertical", 2))
sketch12.addConstraint(Sketcher.Constraint("Horizontal", 3))
sketch12.addConstraint(Sketcher.Constraint("PointOnObject", 0, 2, -1))
sketch12.addConstraint(Sketcher.Constraint("DistanceX", 1, 1, 1, 2, Q("36 in")))
sketch12.addConstraint(Sketcher.Constraint("DistanceY", 0, 2, 0, 1, Q("15 in")))
sketch12.addConstraint(Sketcher.Constraint("DistanceX", -1, 1, 0, 2, 892.373085))
pad9 = doc.addObject("PartDesign::Pad", "Pad008")
body6.addObject(pad9)
pad9.Profile = sketch12
pad9.Length = Q("0.5 in")

doc.recompute()
